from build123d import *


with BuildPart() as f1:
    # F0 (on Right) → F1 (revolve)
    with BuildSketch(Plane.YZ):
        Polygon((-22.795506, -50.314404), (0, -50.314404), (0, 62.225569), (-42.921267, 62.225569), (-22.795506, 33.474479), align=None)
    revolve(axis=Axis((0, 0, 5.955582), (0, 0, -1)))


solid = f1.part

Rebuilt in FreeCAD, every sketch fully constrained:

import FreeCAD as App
import Part
import Sketcher
Q = App.Units.Quantity


def add_polygon(sketch, points):
    """Adds a closed chain of lines whose ends are joined by coincident constraints."""
    first, n = sketch.GeometryCount, len(points)
    for a, b in zip(points, points[1:] + points[:1]):
        sketch.addGeometry(Part.LineSegment(App.Vector(*a, 0), App.Vector(*b, 0)), False)
    for i in range(n):
        sketch.addConstraint(Sketcher.Constraint("Coincident", first + i, 2, first + (i + 1) % n, 1))

doc = App.newDocument("Part")
body = doc.addObject("PartDesign::Body", "Body")

sketch1 = body.newObject("Sketcher::SketchObject", "Sketch")
sketch1.AttachmentSupport = (doc.getObject("YZ_Plane"), [""])
sketch1.MapMode = "FlatFace"
add_polygon(sketch1, [(-22.795506, -50.314404), (0, -50.314404), (0, 62.225569), (-42.921267, 62.225569), (-22.795506, 33.474479)])
sketch1.addConstraint([
    Sketcher.Constraint("Horizontal", 0),
    Sketcher.Constraint("Vertical", 1),
    Sketcher.Constraint("Horizontal", 2),
    Sketcher.Constraint("Vertical", 4),
    Sketcher.Constraint("PointOnObject", 0, 2, -2),
    Sketcher.Constraint("DistanceX", 0, 1, 0, 2, Q("22.795506 mm")),
    Sketcher.Constraint("DistanceX", 2, 2, 2, 1, Q("42.921267 mm")),
    Sketcher.Constraint("DistanceY", 1, 1, 1, 2, Q("112.539973 mm")),
    Sketcher.Constraint("DistanceY", 4, 2, 4, 1, Q("83.788883 mm")),
    Sketcher.Constraint("DistanceY", -1, 1, 1, 2, Q("62.225569 mm")),
])
revolution = body.newObject("PartDesign::Revolution", "Revolution")
revolution.Profile = sketch1
revolution.ReferenceAxis = (sketch1, ["V_Axis"])
revolution.Angle = 360

doc.recompute()
